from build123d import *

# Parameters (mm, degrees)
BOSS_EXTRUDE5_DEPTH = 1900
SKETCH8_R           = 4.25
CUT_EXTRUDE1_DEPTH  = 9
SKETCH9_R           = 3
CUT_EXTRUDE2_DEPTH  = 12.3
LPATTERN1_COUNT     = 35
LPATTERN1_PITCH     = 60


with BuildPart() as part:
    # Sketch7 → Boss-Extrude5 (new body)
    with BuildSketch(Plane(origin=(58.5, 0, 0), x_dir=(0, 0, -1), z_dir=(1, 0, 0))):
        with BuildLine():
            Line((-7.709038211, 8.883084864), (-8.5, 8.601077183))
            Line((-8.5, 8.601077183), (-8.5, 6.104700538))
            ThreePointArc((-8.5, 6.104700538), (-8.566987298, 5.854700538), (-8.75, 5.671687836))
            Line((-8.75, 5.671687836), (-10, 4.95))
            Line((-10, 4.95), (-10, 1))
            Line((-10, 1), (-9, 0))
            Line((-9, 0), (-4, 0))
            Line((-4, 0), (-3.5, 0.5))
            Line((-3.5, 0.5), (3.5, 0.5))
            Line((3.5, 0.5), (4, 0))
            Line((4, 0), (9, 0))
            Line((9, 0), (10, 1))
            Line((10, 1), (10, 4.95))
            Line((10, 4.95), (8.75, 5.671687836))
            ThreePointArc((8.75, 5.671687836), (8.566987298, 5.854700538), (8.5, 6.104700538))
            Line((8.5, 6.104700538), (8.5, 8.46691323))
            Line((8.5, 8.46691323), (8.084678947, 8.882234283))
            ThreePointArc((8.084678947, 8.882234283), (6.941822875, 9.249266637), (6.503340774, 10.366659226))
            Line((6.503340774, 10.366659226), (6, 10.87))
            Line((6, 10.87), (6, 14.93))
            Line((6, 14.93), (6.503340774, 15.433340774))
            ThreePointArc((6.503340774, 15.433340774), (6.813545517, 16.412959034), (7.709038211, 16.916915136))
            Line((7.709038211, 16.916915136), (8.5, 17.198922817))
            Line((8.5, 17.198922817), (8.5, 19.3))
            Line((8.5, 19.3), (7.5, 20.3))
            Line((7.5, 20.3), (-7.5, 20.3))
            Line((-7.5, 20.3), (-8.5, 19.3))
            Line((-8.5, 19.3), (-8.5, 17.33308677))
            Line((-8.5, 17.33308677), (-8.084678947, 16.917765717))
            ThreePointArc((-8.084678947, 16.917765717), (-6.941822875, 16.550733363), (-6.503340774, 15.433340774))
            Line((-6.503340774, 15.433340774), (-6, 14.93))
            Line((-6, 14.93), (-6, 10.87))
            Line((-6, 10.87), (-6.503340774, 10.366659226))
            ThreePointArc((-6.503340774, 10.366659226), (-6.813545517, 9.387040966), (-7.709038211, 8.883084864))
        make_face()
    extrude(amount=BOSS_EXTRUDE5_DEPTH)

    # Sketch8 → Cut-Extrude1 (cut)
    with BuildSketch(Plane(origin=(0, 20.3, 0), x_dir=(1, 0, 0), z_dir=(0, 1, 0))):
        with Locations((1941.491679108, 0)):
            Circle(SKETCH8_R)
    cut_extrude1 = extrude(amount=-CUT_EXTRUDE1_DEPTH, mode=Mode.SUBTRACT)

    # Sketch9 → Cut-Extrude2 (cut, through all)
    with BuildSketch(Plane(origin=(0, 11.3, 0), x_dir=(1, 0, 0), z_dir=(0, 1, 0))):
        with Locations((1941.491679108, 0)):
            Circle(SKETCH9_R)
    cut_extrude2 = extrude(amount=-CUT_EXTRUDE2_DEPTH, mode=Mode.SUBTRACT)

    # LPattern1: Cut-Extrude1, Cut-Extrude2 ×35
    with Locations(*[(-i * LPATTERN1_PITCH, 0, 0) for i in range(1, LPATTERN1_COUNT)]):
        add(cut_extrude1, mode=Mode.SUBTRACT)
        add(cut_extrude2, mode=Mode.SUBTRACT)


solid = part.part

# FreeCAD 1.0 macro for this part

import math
import FreeCAD as App
import Part
import Sketcher
Q = App.Units.Quantity

doc = App.newDocument("Part")
body = doc.addObject("PartDesign::Body", "Body")

# Sketch on YZ plane
sketch1 = body.newObject("Sketcher::SketchObject", "Sketch")
sketch1.AttachmentSupport = (doc.getObject("YZ_Plane"), [""])
sketch1.MapMode = "FlatFace"
sketch1.AttachmentOffset = App.Placement(App.Vector(0, 0, 58.5), App.Rotation())
sketch1.addGeometry([
    Part.LineSegment(App.Vector(8.9, 7.7, 0), App.Vector(8.6, 8.5, 0)),  # 0
    Part.LineSegment(App.Vector(8.6, 8.5, 0), App.Vector(6.1, 8.5, 0)),  # 1
    Part.ArcOfCircle(Part.Circle(App.Vector(6.1, 9, 0), App.Vector(0, 0, 1), 0.5), math.radians(-150), math.radians(-90)),  # 2
    Part.LineSegment(App.Vector(5.7, 8.8, 0), App.Vector(5, 10, 0)),  # 3
    Part.LineSegment(App.Vector(5, 10, 0), App.Vector(1, 10, 0)),  # 4
    Part.LineSegment(App.Vector(1, 10, 0), App.Vector(0, 9, 0)),  # 5
    Part.LineSegment(App.Vector(0, 9, 0), App.Vector(0, 4, 0)),  # 6
    Part.LineSegment(App.Vector(0, 4, 0), App.Vector(0.5, 3.5, 0)),  # 7
    Part.LineSegment(App.Vector(0.5, 3.5, 0), App.Vector(0.5, -3.5, 0)),  # 8
    Part.LineSegment(App.Vector(0.5, -3.5, 0), App.Vector(0, -4, 0)),  # 9
    Part.LineSegment(App.Vector(0, -4, 0), App.Vector(0, -9, 0)),  # 10
    Part.LineSegment(App.Vector(0, -9, 0), App.Vector(1, -10, 0)),  # 11
    Part.LineSegment(App.Vector(1, -10, 0), App.Vector(5, -10, 0)),  # 12
    Part.LineSegment(App.Vector(5, -10, 0), App.Vector(5.7, -8.8, 0)),  # 13
    Part.ArcOfCircle(Part.Circle(App.Vector(6.1, -9, 0), App.Vector(0, 0, 1), 0.5), math.radians(90), math.radians(150)),  # 14
    Part.LineSegment(App.Vector(6.1, -8.5, 0), App.Vector(8.5, -8.5, 0)),  # 15
    Part.LineSegment(App.Vector(8.5, -8.5, 0), App.Vector(8.9, -8.1, 0)),  # 16
    Part.ArcOfCircle(Part.Circle(App.Vector(10.3, -7.9, 0), App.Vector(0, 0, 1), 1.4), math.radians(86), math.radians(188)),  # 17
    Part.LineSegment(App.Vector(10.4, -6.5, 0), App.Vector(10.9, -6, 0)),  # 18
    Part.LineSegment(App.Vector(10.9, -6, 0), App.Vector(14.9, -6, 0)),  # 19
    Part.LineSegment(App.Vector(14.9, -6, 0), App.Vector(15.4, -6.5, 0)),  # 20
    Part.ArcOfCircle(Part.Circle(App.Vector(15.5, -7.9, 0), App.Vector(0, 0, 1), 1.4), math.radians(8), math.radians(94)),  # 21
    Part.LineSegment(App.Vector(16.9, -7.7, 0), App.Vector(17.2, -8.5, 0)),  # 22
    Part.LineSegment(App.Vector(17.2, -8.5, 0), App.Vector(19.3, -8.5, 0)),  # 23
    Part.LineSegment(App.Vector(19.3, -8.5, 0), App.Vector(20.3, -7.5, 0)),  # 24
    Part.LineSegment(App.Vector(20.3, -7.5, 0), App.Vector(20.3, 7.5, 0)),  # 25
    Part.LineSegment(App.Vector(20.3, 7.5, 0), App.Vector(19.3, 8.5, 0)),  # 26
    Part.LineSegment(App.Vector(19.3, 8.5, 0), App.Vector(17.3, 8.5, 0)),  # 27
    Part.LineSegment(App.Vector(17.3, 8.5, 0), App.Vector(16.9, 8.1, 0)),  # 28
    Part.ArcOfCircle(Part.Circle(App.Vector(15.5, 7.9, 0), App.Vector(0, 0, 1), 1.4), math.radians(-94), math.radians(8)),  # 29
    Part.LineSegment(App.Vector(15.4, 6.5, 0), App.Vector(14.9, 6, 0)),  # 30
    Part.LineSegment(App.Vector(14.9, 6, 0), App.Vector(10.9, 6, 0)),  # 31
    Part.LineSegment(App.Vector(10.9, 6, 0), App.Vector(10.4, 6.5, 0)),  # 32
    Part.ArcOfCircle(Part.Circle(App.Vector(10.3, 7.9, 0), App.Vector(0, 0, 1), 1.4), math.radians(-172), math.radians(-86)),  # 33
], False)
sketch1.addConstraint([
    Sketcher.Constraint("Coincident", 0, 2, 1, 1),
    Sketcher.Constraint("Tangent", 1, 2, 2, 2),
    Sketcher.Constraint("Tangent", 2, 1, 3, 1),
    Sketcher.Constraint("Coincident", 3, 2, 4, 1),
    Sketcher.Constraint("Coincident", 4, 2, 5, 1),
    Sketcher.Constraint("Coincident", 5, 2, 6, 1),
    Sketcher.Constraint("Coincident", 6, 2, 7, 1),
    Sketcher.Constraint("Coincident", 7, 2, 8, 1),
    Sketcher.Constraint("Coincident", 8, 2, 9, 1),
    Sketcher.Constraint("Coincident", 9, 2, 10, 1),
    Sketcher.Constraint("Coincident", 10, 2, 11, 1),
    Sketcher.Constraint("Coincident", 11, 2, 12, 1),
    Sketcher.Constraint("Coincident", 12, 2, 13, 1),
    Sketcher.Constraint("Tangent", 13, 2, 14, 2),
    Sketcher.Constraint("Tangent", 14, 1, 15, 1),
    Sketcher.Constraint("Coincident", 15, 2, 16, 1),
    Sketcher.Constraint("Coincident", 16, 2, 17, 2),
    Sketcher.Constraint("Coincident", 17, 1, 18, 1),
    Sketcher.Constraint("Coincident", 18, 2, 19, 1),
    Sketcher.Constraint("Coincident", 19, 2, 20, 1),
    Sketcher.Constraint("Coincident", 20, 2, 21, 2),
    Sketcher.Constraint("Coincident", 21, 1, 22, 1),
    Sketcher.Constraint("Coincident", 22, 2, 23, 1),
    Sketcher.Constraint("Coincident", 23, 2, 24, 1),
    Sketcher.Constraint("Coincident", 24, 2, 25, 1),
    Sketcher.Constraint("Coincident", 25, 2, 26, 1),
    Sketcher.Constraint("Coincident", 26, 2, 27, 1),
    Sketcher.Constraint("Coincident", 27, 2, 28, 1),
    Sketcher.Constraint("Coincident", 28, 2, 29, 2),
    Sketcher.Constraint("Coincident", 29, 1, 30, 1),
    Sketcher.Constraint("Coincident", 30, 2, 31, 1),
    Sketcher.Constraint("Coincident", 31, 2, 32, 1),
    Sketcher.Constraint("Coincident", 32, 2, 33, 2),
    Sketcher.Constraint("Coincident", 33, 1, 0, 1),
    Sketcher.Constraint("Horizontal", 1),
    Sketcher.Constraint("Horizontal", 4),
    Sketcher.Constraint("Vertical", 6),
    Sketcher.Constraint("Vertical", 8),
    Sketcher.Constraint("Vertical", 10),
    Sketcher.Constraint("Horizontal", 12),
    Sketcher.Constraint("Horizontal", 15),
    Sketcher.Constraint("Horizontal", 19),
    Sketcher.Constraint("Horizontal", 23),
    Sketcher.Constraint("Vertical", 25),
    Sketcher.Constraint("Horizontal", 27),
    Sketcher.Constraint("Horizontal", 31),
    Sketcher.Constraint("Equal", 2, 14),
    Sketcher.Constraint("Equal", 17, 21),
    Sketcher.Constraint("Equal", 21, 29),
    Sketcher.Constraint("Equal", 29, 33),
    Sketcher.Constraint("Symmetric", 6, 2, 9, 2, -1, 1),
    Sketcher.Constraint("Symmetric", 2, 3, 14, 3, -1),
    Sketcher.Constraint("Symmetric", 21, 3, 29, 3, -1),
    Sketcher.Constraint("Symmetric", 17, 3, 33, 3, -1),
    Sketcher.Constraint("Symmetric", 5, 2, 10, 2, -1),
    Sketcher.Constraint("Symmetric", 4, 2, 11, 2, -1),
    Sketcher.Constraint("Symmetric", 23, 2, 26, 2, -1),
    Sketcher.Constraint("Symmetric", 19, 2, 30, 2, -1),
    Sketcher.Constraint("Perpendicular", 5, 7),
    Sketcher.Constraint("Perpendicular", 7, 9),
    Sketcher.Constraint("Perpendicular", 9, 11),
    Sketcher.Constraint("Perpendicular", 11, 16),
    Sketcher.Constraint("Parallel", 16, 18),
    Sketcher.Constraint("Perpendicular", 18, 20),
    Sketcher.Constraint("Parallel", 0, 22),
    Sketcher.Constraint("Perpendicular", 20, 24),
    Sketcher.Constraint("Perpendicular", 24, 26),
    Sketcher.Constraint("Perpendicular", 26, 28),
    Sketcher.Constraint("Parallel", 28, 30),
    Sketcher.Constraint("Perpendicular", 30, 32),
    Sketcher.Constraint("Horizontal", 17, 3, 21, 3),
    Sketcher.Constraint("Horizontal", 2, 3, 5, 2),
    Sketcher.Constraint("Horizontal", 17, 1, 20, 2),
    Sketcher.Constraint("Horizontal", 15, 2, 22, 2),
    Sketcher.Constraint("Horizontal", 29, 1, 32, 2),
    Sketcher.Constraint("Vertical", 3, 2, 12, 2),
    Sketcher.Constraint("Equal", 0, 22),
    Sketcher.Constraint("Equal", 11, 24),
    Sketcher.Constraint("Equal", 16, 28),
    Sketcher.Constraint("Radius", 2, 0.5),
    Sketcher.Constraint("Radius", 17, 1.4),
    Sketcher.Constraint("DistanceY", 6, 2, 6, 1, 5.0),
    Sketcher.Constraint("DistanceY", 8, 2, 8, 1, 7.0),
    Sketcher.Constraint("DistanceY", 25, 1, 25, 2, 15.0),
    Sketcher.Constraint("Angle", 3, Q("120 deg")),
    Sketcher.Constraint("DistanceY", -1, 1, 2, 3, 9.0),
    Sketcher.Constraint("DistanceY", 18, 2, -1, 1, 6.0),
    Sketcher.Constraint("DistanceX", 4, 2, 4, 1, 3.95),
    Sketcher.Constraint("DistanceX", 19, 1, 19, 2, 4.06),
    Sketcher.Constraint("DistanceY", 17, 3, -1, 1, 7.9),
    Sketcher.Constraint("DistanceX", -1, 1, 23, 2, 19.3),
    Sketcher.Constraint("DistanceX", 17, 3, 18, 2, 0.6),
    Sketcher.Constraint("DistanceX", -1, 1, 17, 3, 10.27),
    Sketcher.Constraint("Distance", 0, 0.839731),
    Sketcher.Constraint("DistanceX", 1, 2, 1, 1, 2.496377),
    Sketcher.Constraint("DistanceX", 15, 1, 15, 2, 2.362213),
])
pad1 = body.newObject("PartDesign::Pad", "Pad")
pad1.Profile = sketch1
pad1.Length = 1900

# Sketch on XZ plane
sketch2 = body.newObject("Sketcher::SketchObject", "Sketch001")
sketch2.AttachmentSupport = (doc.getObject("XZ_Plane"), [""])
sketch2.MapMode = "FlatFace"
sketch2.AttachmentOffset = App.Placement(App.Vector(0, 0, -20.3), App.Rotation())
sketch2.addGeometry(Part.Circle(App.Vector(1941.5, 0, 0), App.Vector(0, 0, 1), 4.2), False)
sketch2.addConstraint([
    Sketcher.Constraint("PointOnObject", 0, 3, -1),
    Sketcher.Constraint("Diameter", 0, 8.5),
    Sketcher.Constraint("DistanceX", -1, 1, 0, 3, 1941.491679),
])
pocket1 = body.newObject("PartDesign::Pocket", "Pocket")
pocket1.Profile = sketch2
pocket1.Length = 9
pocket1.Reversed = True

# Sketch on XZ plane
sketch3 = body.newObject("Sketcher::SketchObject", "Sketch002")
sketch3.AttachmentSupport = (doc.getObject("XZ_Plane"), [""])
sketch3.MapMode = "FlatFace"
sketch3.AttachmentOffset = App.Placement(App.Vector(0, 0, -11.3), App.Rotation())
sketch3.addGeometry(Part.Circle(App.Vector(1941.5, 0, 0), App.Vector(0, 0, 1), 3), False)
sketch3.addConstraint([
    Sketcher.Constraint("PointOnObject", 0, 3, -1),
    Sketcher.Constraint("Diameter", 0, 6.0),
    Sketcher.Constraint("DistanceX", -1, 1, 0, 3, 1941.491679),
])
pocket2 = body.newObject("PartDesign::Pocket", "Pocket001")
pocket2.Profile = sketch3
pocket2.Type = "ThroughAll"
pocket2.Reversed = True
doc.recompute()

linearpattern = body.newObject("PartDesign::LinearPattern", "LinearPattern")
linearpattern.Originals = [pocket1, pocket2]
linearpattern.Direction = (doc.getObject("X_Axis"), [""])
linearpattern.Mode = "offset"
linearpattern.Offset = 60
linearpattern.Occurrences = 35
linearpattern.Reversed = True
body.Tip = linearpattern

doc.recompute()
